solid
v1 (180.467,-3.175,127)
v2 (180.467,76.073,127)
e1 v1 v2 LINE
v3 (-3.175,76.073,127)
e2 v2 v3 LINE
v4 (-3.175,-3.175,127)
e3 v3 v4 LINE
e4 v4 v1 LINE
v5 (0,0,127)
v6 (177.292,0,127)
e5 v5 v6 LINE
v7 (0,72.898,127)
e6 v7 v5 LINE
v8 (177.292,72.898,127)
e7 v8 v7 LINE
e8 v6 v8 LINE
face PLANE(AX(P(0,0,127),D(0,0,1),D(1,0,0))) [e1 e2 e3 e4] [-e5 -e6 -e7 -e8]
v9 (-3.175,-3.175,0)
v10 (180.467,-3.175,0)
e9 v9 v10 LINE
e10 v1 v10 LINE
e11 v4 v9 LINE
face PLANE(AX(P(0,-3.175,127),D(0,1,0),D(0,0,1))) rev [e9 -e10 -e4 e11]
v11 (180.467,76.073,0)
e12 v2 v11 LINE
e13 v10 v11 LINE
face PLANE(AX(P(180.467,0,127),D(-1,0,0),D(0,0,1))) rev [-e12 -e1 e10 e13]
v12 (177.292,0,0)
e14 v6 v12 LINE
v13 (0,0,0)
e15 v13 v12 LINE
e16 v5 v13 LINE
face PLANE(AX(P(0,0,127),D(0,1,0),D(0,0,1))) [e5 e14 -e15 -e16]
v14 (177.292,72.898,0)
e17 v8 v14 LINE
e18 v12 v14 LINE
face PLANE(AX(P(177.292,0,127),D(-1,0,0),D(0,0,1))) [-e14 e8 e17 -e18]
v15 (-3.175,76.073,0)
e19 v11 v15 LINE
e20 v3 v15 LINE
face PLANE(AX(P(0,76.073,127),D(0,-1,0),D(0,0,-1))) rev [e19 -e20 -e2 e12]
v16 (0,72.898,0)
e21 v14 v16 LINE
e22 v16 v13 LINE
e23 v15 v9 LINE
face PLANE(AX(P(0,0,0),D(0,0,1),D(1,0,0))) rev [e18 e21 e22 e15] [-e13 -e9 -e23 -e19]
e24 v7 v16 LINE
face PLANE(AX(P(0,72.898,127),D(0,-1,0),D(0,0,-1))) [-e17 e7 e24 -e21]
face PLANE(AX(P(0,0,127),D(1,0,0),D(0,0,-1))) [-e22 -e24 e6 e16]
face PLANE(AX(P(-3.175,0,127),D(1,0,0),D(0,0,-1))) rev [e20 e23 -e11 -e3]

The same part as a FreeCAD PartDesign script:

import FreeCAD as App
import Part
import Sketcher
from FreeCAD import Vector
Q = App.Units.Quantity

doc = App.newDocument("Part")
body = doc.addObject("PartDesign::Body", "Body")

# Sketch on XY plane
sketch1 = body.newObject("Sketcher::SketchObject", "Sketch")
sketch1.AttachmentSupport = (doc.getObject("XY_Plane"), [""])
sketch1.MapMode = "FlatFace"
sketch1.addGeometry([
    Part.LineSegment(Vector(-3, 76, 0), Vector(-3, -3, 0)),  # 0
    Part.LineSegment(Vector(-3, -3, 0), Vector(180, -3, 0)),  # 1
    Part.LineSegment(Vector(180, -3, 0), Vector(180, 76, 0)),  # 2
    Part.LineSegment(Vector(180, 76, 0), Vector(-3, 76, 0)),  # 3
    Part.LineSegment(Vector(177, 0, 0), Vector(0, 0, 0)),  # 4
    Part.LineSegment(Vector(0, 0, 0), Vector(0, 73, 0)),  # 5
    Part.LineSegment(Vector(0, 73, 0), Vector(177, 73, 0)),  # 6
    Part.LineSegment(Vector(177, 73, 0), Vector(177, 0, 0)),  # 7
], False)
sketch1.addConstraint([
    Sketcher.Constraint("Coincident", 0, 2, 1, 1),
    Sketcher.Constraint("Coincident", 1, 2, 2, 1),
    Sketcher.Constraint("Coincident", 2, 2, 3, 1),
    Sketcher.Constraint("Coincident", 3, 2, 0, 1),
    Sketcher.Constraint("Coincident", 4, 2, 5, 1),
    Sketcher.Constraint("Coincident", 5, 2, 6, 1),
    Sketcher.Constraint("Coincident", 6, 2, 7, 1),
    Sketcher.Constraint("Coincident", 7, 2, 4, 1),
    Sketcher.Constraint("Vertical", 0),
    Sketcher.Constraint("Horizontal", 1),
    Sketcher.Constraint("Vertical", 2),
    Sketcher.Constraint("Horizontal", 3),
    Sketcher.Constraint("Horizontal", 4),
    Sketcher.Constraint("Vertical", 5),
    Sketcher.Constraint("Horizontal", 6),
    Sketcher.Constraint("Vertical", 7),
    Sketcher.Constraint("Coincident", 4, 2, -1, 1),
    Sketcher.Constraint("DistanceX", 1, 1, 1, 2, Q("7.23 in")),
    Sketcher.Constraint("DistanceX", 4, 2, 4, 1, Q("6.98 in")),
    Sketcher.Constraint("DistanceY", 0, 2, 0, 1, Q("3.12 in")),
    Sketcher.Constraint("DistanceY", 5, 1, 5, 2, Q("2.87 in")),
    Sketcher.Constraint("DistanceX", 0, 2, -1, 1, Q("0.125 in")),
    Sketcher.Constraint("DistanceY", 0, 2, -1, 1, Q("0.125 in")),
])
pad1 = body.newObject("PartDesign::Pad", "Pad")
pad1.Profile = sketch1
pad1.Length = Q("5 in")

doc.recompute()
